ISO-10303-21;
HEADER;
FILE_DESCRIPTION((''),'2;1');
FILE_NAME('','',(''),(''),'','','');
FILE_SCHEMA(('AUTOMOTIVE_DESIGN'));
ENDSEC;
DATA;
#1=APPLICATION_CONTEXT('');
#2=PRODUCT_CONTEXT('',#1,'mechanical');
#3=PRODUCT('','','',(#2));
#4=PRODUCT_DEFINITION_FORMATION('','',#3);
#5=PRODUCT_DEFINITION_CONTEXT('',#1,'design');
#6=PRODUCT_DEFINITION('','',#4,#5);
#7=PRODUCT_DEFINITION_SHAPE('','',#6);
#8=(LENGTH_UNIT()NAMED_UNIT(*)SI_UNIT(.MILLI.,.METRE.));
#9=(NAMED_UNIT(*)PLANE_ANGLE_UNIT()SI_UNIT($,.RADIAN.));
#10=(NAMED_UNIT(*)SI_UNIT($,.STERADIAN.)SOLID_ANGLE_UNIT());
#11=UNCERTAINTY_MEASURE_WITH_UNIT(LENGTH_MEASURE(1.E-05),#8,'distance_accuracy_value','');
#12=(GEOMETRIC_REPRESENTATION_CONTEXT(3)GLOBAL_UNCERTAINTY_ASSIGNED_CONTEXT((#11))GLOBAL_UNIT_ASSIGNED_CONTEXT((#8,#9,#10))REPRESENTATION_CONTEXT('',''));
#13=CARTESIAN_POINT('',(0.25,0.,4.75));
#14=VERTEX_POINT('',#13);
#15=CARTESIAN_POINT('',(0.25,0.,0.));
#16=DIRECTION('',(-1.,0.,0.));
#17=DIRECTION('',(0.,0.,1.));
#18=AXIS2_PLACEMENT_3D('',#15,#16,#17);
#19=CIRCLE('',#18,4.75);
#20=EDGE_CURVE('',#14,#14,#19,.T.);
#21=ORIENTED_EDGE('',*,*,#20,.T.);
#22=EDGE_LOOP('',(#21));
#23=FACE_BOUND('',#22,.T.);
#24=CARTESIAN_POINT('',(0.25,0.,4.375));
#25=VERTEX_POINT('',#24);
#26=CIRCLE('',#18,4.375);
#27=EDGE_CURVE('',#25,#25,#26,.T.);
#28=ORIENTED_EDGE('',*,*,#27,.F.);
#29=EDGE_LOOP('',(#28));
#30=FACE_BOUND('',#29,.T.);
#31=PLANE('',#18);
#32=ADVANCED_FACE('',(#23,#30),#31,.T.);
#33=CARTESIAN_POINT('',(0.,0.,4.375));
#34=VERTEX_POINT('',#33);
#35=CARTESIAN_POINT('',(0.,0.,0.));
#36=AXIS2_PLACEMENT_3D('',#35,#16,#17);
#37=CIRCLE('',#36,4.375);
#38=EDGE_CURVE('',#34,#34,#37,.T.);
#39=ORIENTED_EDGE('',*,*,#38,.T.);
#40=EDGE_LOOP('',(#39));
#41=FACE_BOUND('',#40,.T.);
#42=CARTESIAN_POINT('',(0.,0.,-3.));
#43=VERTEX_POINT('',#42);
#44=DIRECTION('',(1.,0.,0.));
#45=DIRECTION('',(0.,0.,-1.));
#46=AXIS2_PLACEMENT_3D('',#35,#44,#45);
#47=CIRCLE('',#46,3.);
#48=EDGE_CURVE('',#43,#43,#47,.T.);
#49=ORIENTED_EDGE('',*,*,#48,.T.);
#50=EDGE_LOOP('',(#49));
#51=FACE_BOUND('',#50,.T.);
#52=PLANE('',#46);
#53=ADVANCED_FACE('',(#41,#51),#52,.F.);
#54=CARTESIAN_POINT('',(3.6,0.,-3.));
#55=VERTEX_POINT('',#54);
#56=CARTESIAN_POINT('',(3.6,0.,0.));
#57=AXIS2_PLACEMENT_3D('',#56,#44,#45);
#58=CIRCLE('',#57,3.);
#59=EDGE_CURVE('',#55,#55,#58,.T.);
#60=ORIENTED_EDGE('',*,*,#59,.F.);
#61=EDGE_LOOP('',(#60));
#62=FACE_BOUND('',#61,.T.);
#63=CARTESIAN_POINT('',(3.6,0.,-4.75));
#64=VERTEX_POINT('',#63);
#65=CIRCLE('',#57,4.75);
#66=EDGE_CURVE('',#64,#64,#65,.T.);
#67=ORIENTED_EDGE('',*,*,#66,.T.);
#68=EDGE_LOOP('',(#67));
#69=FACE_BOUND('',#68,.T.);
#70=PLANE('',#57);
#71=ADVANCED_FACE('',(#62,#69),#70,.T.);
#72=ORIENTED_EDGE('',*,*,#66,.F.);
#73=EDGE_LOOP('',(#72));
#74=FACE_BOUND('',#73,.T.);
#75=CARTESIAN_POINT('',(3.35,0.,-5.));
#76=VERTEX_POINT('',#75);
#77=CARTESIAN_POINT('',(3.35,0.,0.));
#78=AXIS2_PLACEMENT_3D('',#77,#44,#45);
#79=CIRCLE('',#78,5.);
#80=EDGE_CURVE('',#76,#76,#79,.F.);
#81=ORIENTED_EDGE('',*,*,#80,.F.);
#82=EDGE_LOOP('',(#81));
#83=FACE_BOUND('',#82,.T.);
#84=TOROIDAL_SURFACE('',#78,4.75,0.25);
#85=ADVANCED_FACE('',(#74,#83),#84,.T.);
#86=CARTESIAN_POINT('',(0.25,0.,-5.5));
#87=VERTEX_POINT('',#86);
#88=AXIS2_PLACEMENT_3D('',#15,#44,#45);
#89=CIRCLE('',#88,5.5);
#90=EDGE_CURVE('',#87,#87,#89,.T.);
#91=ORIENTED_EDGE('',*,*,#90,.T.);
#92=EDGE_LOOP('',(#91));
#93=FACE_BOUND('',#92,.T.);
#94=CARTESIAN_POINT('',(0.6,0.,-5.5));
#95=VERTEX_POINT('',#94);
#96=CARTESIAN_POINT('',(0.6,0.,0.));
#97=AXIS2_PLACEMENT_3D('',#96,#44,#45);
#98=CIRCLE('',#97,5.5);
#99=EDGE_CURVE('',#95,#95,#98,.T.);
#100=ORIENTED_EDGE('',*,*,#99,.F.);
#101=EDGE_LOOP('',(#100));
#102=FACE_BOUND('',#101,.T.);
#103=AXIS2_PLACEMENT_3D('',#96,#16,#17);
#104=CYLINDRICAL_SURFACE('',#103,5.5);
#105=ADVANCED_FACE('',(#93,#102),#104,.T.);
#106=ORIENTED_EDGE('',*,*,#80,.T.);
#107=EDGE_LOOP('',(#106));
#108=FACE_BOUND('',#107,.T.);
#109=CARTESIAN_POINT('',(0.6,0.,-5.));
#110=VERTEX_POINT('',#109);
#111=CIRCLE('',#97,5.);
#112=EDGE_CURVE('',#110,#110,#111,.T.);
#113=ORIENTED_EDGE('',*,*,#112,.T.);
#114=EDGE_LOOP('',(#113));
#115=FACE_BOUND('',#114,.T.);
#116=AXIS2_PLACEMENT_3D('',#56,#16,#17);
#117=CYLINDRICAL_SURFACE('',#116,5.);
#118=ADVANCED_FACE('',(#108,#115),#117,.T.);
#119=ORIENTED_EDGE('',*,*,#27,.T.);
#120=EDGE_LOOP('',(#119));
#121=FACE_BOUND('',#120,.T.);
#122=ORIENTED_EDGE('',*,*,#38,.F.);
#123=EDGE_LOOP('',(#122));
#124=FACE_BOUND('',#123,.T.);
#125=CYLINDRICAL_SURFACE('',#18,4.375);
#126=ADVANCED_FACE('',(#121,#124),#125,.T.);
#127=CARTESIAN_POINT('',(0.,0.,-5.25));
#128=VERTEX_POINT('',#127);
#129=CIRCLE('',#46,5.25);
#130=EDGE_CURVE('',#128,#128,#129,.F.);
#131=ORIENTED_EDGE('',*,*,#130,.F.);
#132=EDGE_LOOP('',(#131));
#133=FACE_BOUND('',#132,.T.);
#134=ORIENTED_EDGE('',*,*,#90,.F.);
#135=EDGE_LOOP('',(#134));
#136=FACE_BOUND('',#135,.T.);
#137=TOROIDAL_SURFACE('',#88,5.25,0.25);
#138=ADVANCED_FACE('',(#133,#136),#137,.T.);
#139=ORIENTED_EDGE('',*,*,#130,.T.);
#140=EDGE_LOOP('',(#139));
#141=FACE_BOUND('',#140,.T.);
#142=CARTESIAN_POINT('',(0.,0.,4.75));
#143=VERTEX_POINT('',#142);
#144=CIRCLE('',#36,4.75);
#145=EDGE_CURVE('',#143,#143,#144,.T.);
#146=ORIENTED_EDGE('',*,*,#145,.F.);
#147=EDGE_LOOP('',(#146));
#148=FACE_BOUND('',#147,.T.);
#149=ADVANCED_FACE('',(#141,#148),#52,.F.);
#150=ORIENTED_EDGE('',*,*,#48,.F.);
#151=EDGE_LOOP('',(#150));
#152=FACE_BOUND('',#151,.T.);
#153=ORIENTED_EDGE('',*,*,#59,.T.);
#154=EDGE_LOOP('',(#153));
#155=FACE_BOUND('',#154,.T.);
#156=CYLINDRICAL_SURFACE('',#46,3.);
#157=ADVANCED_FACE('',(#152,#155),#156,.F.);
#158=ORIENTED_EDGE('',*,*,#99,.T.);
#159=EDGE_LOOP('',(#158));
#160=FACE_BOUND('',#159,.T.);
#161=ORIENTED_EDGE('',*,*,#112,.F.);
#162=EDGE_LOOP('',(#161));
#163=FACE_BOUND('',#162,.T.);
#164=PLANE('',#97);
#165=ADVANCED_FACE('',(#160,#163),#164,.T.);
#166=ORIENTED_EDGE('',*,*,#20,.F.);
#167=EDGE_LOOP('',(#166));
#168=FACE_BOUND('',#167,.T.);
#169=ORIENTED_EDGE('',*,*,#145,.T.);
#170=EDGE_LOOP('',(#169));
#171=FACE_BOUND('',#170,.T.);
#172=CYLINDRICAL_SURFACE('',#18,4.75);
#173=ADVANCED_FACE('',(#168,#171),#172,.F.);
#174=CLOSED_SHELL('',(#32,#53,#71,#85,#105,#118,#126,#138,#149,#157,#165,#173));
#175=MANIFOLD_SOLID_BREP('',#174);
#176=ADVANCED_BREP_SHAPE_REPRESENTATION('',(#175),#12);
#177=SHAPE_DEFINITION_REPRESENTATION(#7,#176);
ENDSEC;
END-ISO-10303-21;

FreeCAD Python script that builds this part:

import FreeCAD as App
import Part
import Sketcher


def edges_at(feature, points):
    """Names of the edges that pass closest to the given points."""
    edges = feature.Shape.Edges
    near = lambda p: min(range(len(edges)), key=lambda i: edges[i].distToShape(Part.Vertex(*p))[0])
    return sorted({f"Edge{near(p) + 1}" for p in points})

doc = App.newDocument("Part")
body = doc.addObject("PartDesign::Body", "Body")

# Sketch on YZ plane
sketch1 = body.newObject("Sketcher::SketchObject", "Sketch")
sketch1.AttachmentSupport = (doc.getObject("YZ_Plane"), [""])
sketch1.MapMode = "FlatFace"
sketch1.addGeometry(Part.Circle(App.Vector(0, 0, 0), App.Vector(0, 0, 1), 5.5), False)
sketch1.addConstraint(Sketcher.Constraint("Coincident", 0, 3, -1, 1))
sketch1.addConstraint(Sketcher.Constraint("Diameter", 0, 11.0))
pad1 = body.newObject("PartDesign::Pad", "Pad")
pad1.Profile = sketch1
pad1.Length = 0.6

# Sketch on YZ plane
sketch2 = body.newObject("Sketcher::SketchObject", "Sketch001")
sketch2.AttachmentSupport = (doc.getObject("YZ_Plane"), [""])
sketch2.MapMode = "FlatFace"
sketch2.AttachmentOffset = App.Placement(App.Vector(0, 0, 0.6), App.Rotation())
sketch2.addGeometry(Part.Circle(App.Vector(0, 0, 0), App.Vector(0, 0, 1), 5), False)
sketch2.addConstraint(Sketcher.Constraint("Coincident", 0, 3, -1, 1))
sketch2.addConstraint(Sketcher.Constraint("Diameter", 0, 10.0))
pad2 = body.newObject("PartDesign::Pad", "Pad001")
pad2.Profile = sketch2
pad2.Length = 3

# Sketch on YZ plane
sketch3 = body.newObject("Sketcher::SketchObject", "Sketch002")
sketch3.AttachmentSupport = (doc.getObject("YZ_Plane"), [""])
sketch3.MapMode = "FlatFace"
sketch3.AttachmentOffset = App.Placement(App.Vector(0, 0, 3.6), App.Rotation())
sketch3.addGeometry(Part.Circle(App.Vector(0, 0, 0), App.Vector(0, 0, 1), 3), False)
sketch3.addConstraint(Sketcher.Constraint("Coincident", 0, 3, -1, 1))
sketch3.addConstraint(Sketcher.Constraint("Diameter", 0, 6.0))
pocket1 = body.newObject("PartDesign::Pocket", "Pocket")
pocket1.Profile = sketch3
pocket1.Type = "ThroughAll"

# Sketch on YZ plane
sketch4 = body.newObject("Sketcher::SketchObject", "Sketch003")
sketch4.AttachmentSupport = (doc.getObject("YZ_Plane"), [""])
sketch4.MapMode = "FlatFace"
sketch4.addGeometry(Part.Circle(App.Vector(0, 0, 0), App.Vector(0, 0, 1), 4.75), False)
sketch4.addGeometry(Part.Circle(App.Vector(0, 0, 0), App.Vector(0, 0, 1), 4.375), False)
sketch4.addConstraint(Sketcher.Constraint("Coincident", 0, 3, -1, 1))
sketch4.addConstraint(Sketcher.Constraint("Coincident", 1, 3, -1, 1))
sketch4.addConstraint(Sketcher.Constraint("Diameter", 0, 9.5))
sketch4.addConstraint(Sketcher.Constraint("Diameter", 1, 8.75))
pocket2 = body.newObject("PartDesign::Pocket", "Pocket001")
pocket2.Profile = sketch4
pocket2.Length = 0.25
pocket2.Reversed = True
doc.recompute()

fillet = body.newObject("PartDesign::Fillet", "Fillet")
fillet.Base = (pocket2, edges_at(pocket2, [(0, 0, 5.5)]))
fillet.Radius = 0.25
doc.recompute()

fillet2 = body.newObject("PartDesign::Fillet", "Fillet001")
fillet2.Base = (fillet, edges_at(fillet, [(3.6, 0, 5)]))
fillet2.Radius = 0.25

doc.recompute()
